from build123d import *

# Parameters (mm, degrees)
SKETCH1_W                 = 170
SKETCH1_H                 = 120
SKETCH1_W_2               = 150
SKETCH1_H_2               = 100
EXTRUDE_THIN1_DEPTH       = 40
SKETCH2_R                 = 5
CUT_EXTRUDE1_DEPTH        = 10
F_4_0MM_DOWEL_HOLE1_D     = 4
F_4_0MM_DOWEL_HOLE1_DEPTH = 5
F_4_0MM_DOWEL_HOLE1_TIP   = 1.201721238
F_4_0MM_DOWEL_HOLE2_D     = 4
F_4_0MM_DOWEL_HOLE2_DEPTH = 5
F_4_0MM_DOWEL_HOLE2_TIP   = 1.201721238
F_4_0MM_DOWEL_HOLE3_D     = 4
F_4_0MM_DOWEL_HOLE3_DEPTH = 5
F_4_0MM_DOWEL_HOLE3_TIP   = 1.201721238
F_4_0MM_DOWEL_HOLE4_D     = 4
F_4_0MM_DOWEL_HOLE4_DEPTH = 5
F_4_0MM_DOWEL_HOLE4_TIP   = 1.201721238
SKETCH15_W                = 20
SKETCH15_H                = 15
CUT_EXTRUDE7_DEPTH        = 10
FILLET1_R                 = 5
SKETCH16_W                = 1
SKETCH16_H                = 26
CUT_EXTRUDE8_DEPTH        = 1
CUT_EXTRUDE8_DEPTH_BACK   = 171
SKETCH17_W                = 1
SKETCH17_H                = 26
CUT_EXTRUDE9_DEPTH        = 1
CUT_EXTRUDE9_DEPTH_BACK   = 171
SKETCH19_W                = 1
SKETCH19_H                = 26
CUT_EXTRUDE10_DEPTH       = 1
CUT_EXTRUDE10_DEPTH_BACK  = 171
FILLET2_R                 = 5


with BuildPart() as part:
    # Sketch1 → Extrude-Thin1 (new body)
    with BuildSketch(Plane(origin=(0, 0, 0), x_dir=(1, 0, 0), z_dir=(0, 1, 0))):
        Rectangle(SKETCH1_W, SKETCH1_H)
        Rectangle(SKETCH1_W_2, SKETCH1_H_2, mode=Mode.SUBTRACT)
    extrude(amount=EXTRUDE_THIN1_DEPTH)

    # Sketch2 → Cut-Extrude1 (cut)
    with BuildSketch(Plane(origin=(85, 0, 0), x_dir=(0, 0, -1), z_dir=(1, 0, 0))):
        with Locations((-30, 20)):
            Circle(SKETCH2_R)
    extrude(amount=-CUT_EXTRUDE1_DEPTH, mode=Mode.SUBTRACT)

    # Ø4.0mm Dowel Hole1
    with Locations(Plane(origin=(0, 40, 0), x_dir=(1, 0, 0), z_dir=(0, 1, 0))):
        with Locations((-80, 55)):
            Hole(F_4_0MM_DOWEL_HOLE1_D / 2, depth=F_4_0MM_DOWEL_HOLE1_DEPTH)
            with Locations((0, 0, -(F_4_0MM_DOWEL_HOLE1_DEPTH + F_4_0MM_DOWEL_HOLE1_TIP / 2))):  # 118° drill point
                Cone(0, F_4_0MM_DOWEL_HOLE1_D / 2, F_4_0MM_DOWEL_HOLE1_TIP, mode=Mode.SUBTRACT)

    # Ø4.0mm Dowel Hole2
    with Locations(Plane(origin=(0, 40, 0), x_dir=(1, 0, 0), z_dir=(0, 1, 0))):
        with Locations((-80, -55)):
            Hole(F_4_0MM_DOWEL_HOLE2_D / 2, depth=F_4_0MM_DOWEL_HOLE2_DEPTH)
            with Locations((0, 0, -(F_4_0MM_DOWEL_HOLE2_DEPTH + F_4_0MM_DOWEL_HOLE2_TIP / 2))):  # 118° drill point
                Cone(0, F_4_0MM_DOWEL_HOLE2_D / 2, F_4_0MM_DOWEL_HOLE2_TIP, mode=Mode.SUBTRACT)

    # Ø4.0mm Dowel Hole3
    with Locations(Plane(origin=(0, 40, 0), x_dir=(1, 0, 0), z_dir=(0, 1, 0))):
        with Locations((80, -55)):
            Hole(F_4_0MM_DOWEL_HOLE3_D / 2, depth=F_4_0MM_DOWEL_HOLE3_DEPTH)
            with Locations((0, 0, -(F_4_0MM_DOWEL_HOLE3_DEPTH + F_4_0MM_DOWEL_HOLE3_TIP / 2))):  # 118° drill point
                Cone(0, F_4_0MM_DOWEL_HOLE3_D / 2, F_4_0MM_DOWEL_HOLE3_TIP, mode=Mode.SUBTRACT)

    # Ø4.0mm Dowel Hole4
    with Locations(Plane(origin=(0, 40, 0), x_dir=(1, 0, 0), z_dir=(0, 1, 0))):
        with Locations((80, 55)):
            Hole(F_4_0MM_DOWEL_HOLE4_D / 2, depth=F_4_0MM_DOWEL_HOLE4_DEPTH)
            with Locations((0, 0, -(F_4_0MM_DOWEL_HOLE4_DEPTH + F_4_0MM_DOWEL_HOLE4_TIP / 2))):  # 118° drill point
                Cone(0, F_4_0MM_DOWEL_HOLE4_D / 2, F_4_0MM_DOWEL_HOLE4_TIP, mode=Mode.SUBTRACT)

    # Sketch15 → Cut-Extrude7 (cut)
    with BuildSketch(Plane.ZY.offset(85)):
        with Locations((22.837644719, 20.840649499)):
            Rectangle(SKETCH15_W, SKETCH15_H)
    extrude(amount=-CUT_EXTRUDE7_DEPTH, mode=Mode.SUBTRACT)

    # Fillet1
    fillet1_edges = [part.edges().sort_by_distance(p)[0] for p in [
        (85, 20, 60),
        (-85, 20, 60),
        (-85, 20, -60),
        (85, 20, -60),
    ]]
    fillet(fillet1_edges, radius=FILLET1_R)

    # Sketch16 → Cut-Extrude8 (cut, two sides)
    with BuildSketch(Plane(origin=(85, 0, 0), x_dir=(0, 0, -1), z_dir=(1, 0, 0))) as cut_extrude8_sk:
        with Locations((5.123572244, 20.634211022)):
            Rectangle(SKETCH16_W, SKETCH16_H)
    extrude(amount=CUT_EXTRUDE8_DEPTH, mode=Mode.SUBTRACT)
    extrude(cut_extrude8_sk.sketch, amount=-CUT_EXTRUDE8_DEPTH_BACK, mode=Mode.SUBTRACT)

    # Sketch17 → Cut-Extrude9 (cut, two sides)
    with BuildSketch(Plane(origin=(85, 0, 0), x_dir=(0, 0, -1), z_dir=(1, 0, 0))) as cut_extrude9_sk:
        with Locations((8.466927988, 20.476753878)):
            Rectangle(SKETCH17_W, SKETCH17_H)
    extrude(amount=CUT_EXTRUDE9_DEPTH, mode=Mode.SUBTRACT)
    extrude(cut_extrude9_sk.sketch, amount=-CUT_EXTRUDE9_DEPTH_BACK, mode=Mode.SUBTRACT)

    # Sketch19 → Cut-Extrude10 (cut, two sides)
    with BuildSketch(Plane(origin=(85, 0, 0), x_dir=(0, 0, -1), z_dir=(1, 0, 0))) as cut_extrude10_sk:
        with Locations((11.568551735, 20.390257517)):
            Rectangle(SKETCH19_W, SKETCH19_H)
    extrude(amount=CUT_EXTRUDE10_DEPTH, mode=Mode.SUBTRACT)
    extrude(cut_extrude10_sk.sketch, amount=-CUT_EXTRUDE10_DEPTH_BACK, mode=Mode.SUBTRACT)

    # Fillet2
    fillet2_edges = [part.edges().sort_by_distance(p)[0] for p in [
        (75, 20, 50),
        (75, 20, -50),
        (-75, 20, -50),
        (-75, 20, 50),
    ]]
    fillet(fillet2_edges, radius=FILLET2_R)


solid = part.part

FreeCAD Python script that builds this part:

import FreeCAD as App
import Part
import Sketcher

V = App.Vector
Q = App.Units.Quantity


def edges_at(feature, points):
    """Names of the edges that pass closest to the given points."""
    edges = feature.Shape.Edges
    near = lambda p: min(range(len(edges)), key=lambda i: edges[i].distToShape(Part.Vertex(*p))[0])
    return sorted({f"Edge{near(p) + 1}" for p in points})

doc = App.newDocument("Part")
body = doc.addObject("PartDesign::Body", "Body")

# Sketch on XZ plane
sketch1 = body.newObject("Sketcher::SketchObject", "Sketch")
sketch1.AttachmentSupport = (doc.getObject("XZ_Plane"), [""])
sketch1.MapMode = "FlatFace"
sketch1.addGeometry([
    Part.LineSegment(V(-85, -60, 0), V(-85, 60, 0)),  # 0
    Part.LineSegment(V(-85, 60, 0), V(85, 60, 0)),  # 1
    Part.LineSegment(V(85, 60, 0), V(85, -60, 0)),  # 2
    Part.LineSegment(V(85, -60, 0), V(-85, -60, 0)),  # 3
    Part.LineSegment(V(75, 50, 0), V(-75, 50, 0)),  # 4
    Part.LineSegment(V(-75, 50, 0), V(-75, -50, 0)),  # 5
    Part.LineSegment(V(-75, -50, 0), V(75, -50, 0)),  # 6
    Part.LineSegment(V(75, -50, 0), V(75, 50, 0)),  # 7
], False)
sketch1.addConstraint([
    Sketcher.Constraint("Coincident", 0, 2, 1, 1),
    Sketcher.Constraint("Coincident", 1, 2, 2, 1),
    Sketcher.Constraint("Coincident", 2, 2, 3, 1),
    Sketcher.Constraint("Coincident", 3, 2, 0, 1),
    Sketcher.Constraint("Coincident", 4, 2, 5, 1),
    Sketcher.Constraint("Coincident", 5, 2, 6, 1),
    Sketcher.Constraint("Coincident", 6, 2, 7, 1),
    Sketcher.Constraint("Coincident", 7, 2, 4, 1),
    Sketcher.Constraint("Vertical", 0),
    Sketcher.Constraint("Horizontal", 1),
    Sketcher.Constraint("Vertical", 2),
    Sketcher.Constraint("Horizontal", 3),
    Sketcher.Constraint("Horizontal", 4),
    Sketcher.Constraint("Vertical", 5),
    Sketcher.Constraint("Horizontal", 6),
    Sketcher.Constraint("Vertical", 7),
    Sketcher.Constraint("Symmetric", 0, 2, 2, 2, -1, 1),
    Sketcher.Constraint("Symmetric", 4, 2, 6, 2, -1, 1),
    Sketcher.Constraint("DistanceX", 1, 1, 1, 2, Q("170 mm")),
    Sketcher.Constraint("DistanceX", 4, 2, 4, 1, Q("150 mm")),
    Sketcher.Constraint("DistanceY", 0, 1, 0, 2, Q("120 mm")),
    Sketcher.Constraint("DistanceY", 5, 2, 5, 1, Q("100 mm")),
])
pad1 = body.newObject("PartDesign::Pad", "Pad")
pad1.Profile = sketch1
pad1.Length = 40
pad1.Reversed = True

# Sketch on YZ plane
sketch2 = body.newObject("Sketcher::SketchObject", "Sketch001")
sketch2.AttachmentSupport = (doc.getObject("YZ_Plane"), [""])
sketch2.MapMode = "FlatFace"
sketch2.AttachmentOffset = App.Placement(V(0, 0, 85), App.Rotation())
sketch2.addGeometry(Part.Circle(V(20, 30, 0), V(0, 0, 1), 5), False)
sketch2.addConstraint([
    Sketcher.Constraint("Diameter", 0, Q("10 mm")),
    Sketcher.Constraint("DistanceX", -1, 1, 0, 3, Q("20 mm")),
    Sketcher.Constraint("DistanceY", -1, 1, 0, 3, Q("30 mm")),
])
pocket1 = body.newObject("PartDesign::Pocket", "Pocket")
pocket1.Profile = sketch2
pocket1.Length = 10

# Sketch on XZ plane
sketch3 = body.newObject("Sketcher::SketchObject", "Sketch002")
sketch3.AttachmentSupport = (doc.getObject("XZ_Plane"), [""])
sketch3.MapMode = "FlatFace"
sketch3.AttachmentOffset = App.Placement(V(0, 0, -40), App.Rotation())
sketch3.addGeometry(Part.Circle(V(-80, -55, 0), V(0, 0, 1), 2), False)
sketch3.addConstraint([
    Sketcher.Constraint("Diameter", 0, Q("4 mm")),
    Sketcher.Constraint("DistanceX", 0, 3, -1, 1, Q("80 mm")),
    Sketcher.Constraint("DistanceY", 0, 3, -1, 1, Q("55 mm")),
])
doc.recompute()
hole = body.newObject("PartDesign::Hole", "Hole")
hole.Profile = sketch3
hole.ThreadType = "None"
hole.Diameter = 4
hole.DepthType = "Dimension"
hole.Depth = 5
hole.DrillPoint = "Angled"
hole.DrillPointAngle = 118
hole.Reversed = True

# Sketch on XZ plane
sketch4 = body.newObject("Sketcher::SketchObject", "Sketch003")
sketch4.AttachmentSupport = (doc.getObject("XZ_Plane"), [""])
sketch4.MapMode = "FlatFace"
sketch4.AttachmentOffset = App.Placement(V(0, 0, -40), App.Rotation())
sketch4.addGeometry(Part.Circle(V(-80, 55, 0), V(0, 0, 1), 2), False)
sketch4.addConstraint([
    Sketcher.Constraint("Diameter", 0, Q("4 mm")),
    Sketcher.Constraint("DistanceX", 0, 3, -1, 1, Q("80 mm")),
    Sketcher.Constraint("DistanceY", -1, 1, 0, 3, Q("55 mm")),
])
doc.recompute()
hole2 = body.newObject("PartDesign::Hole", "Hole001")
hole2.Profile = sketch4
hole2.ThreadType = "None"
hole2.Diameter = 4
hole2.DepthType = "Dimension"
hole2.Depth = 5
hole2.DrillPoint = "Angled"
hole2.DrillPointAngle = 118
hole2.Reversed = True

# Sketch on XZ plane
sketch5 = body.newObject("Sketcher::SketchObject", "Sketch004")
sketch5.AttachmentSupport = (doc.getObject("XZ_Plane"), [""])
sketch5.MapMode = "FlatFace"
sketch5.AttachmentOffset = App.Placement(V(0, 0, -40), App.Rotation())
sketch5.addGeometry(Part.Circle(V(80, 55, 0), V(0, 0, 1), 2), False)
sketch5.addConstraint([
    Sketcher.Constraint("Diameter", 0, Q("4 mm")),
    Sketcher.Constraint("DistanceX", -1, 1, 0, 3, Q("80 mm")),
    Sketcher.Constraint("DistanceY", -1, 1, 0, 3, Q("55 mm")),
])
doc.recompute()
hole3 = body.newObject("PartDesign::Hole", "Hole002")
hole3.Profile = sketch5
hole3.ThreadType = "None"
hole3.Diameter = 4
hole3.DepthType = "Dimension"
hole3.Depth = 5
hole3.DrillPoint = "Angled"
hole3.DrillPointAngle = 118
hole3.Reversed = True

# Sketch on XZ plane
sketch6 = body.newObject("Sketcher::SketchObject", "Sketch005")
sketch6.AttachmentSupport = (doc.getObject("XZ_Plane"), [""])
sketch6.MapMode = "FlatFace"
sketch6.AttachmentOffset = App.Placement(V(0, 0, -40), App.Rotation())
sketch6.addGeometry(Part.Circle(V(80, -55, 0), V(0, 0, 1), 2), False)
sketch6.addConstraint([
    Sketcher.Constraint("Diameter", 0, Q("4 mm")),
    Sketcher.Constraint("DistanceX", -1, 1, 0, 3, Q("80 mm")),
    Sketcher.Constraint("DistanceY", 0, 3, -1, 1, Q("55 mm")),
])
doc.recompute()
hole4 = body.newObject("PartDesign::Hole", "Hole003")
hole4.Profile = sketch6
hole4.ThreadType = "None"
hole4.Diameter = 4
hole4.DepthType = "Dimension"
hole4.Depth = 5
hole4.DrillPoint = "Angled"
hole4.DrillPointAngle = 118
hole4.Reversed = True

# Sketch on YZ plane
sketch7 = body.newObject("Sketcher::SketchObject", "Sketch006")
sketch7.AttachmentSupport = (doc.getObject("YZ_Plane"), [""])
sketch7.MapMode = "FlatFace"
sketch7.AttachmentOffset = App.Placement(V(0, 0, -85), App.Rotation())
sketch7.addGeometry([
    Part.LineSegment(V(28.340649, 12.837645, 0), V(13.340649, 12.837645, 0)),
    Part.LineSegment(V(13.340649, 12.837645, 0), V(13.340649, 32.837645, 0)),
    Part.LineSegment(V(13.340649, 32.837645, 0), V(28.340649, 32.837645, 0)),
    Part.LineSegment(V(28.340649, 32.837645, 0), V(28.340649, 12.837645, 0)),
], False)
sketch7.addConstraint([
    Sketcher.Constraint("Coincident", 0, 2, 1, 1),
    Sketcher.Constraint("Coincident", 1, 2, 2, 1),
    Sketcher.Constraint("Coincident", 2, 2, 3, 1),
    Sketcher.Constraint("Coincident", 3, 2, 0, 1),
    Sketcher.Constraint("Horizontal", 0),
    Sketcher.Constraint("Vertical", 1),
    Sketcher.Constraint("Horizontal", 2),
    Sketcher.Constraint("Vertical", 3),
    Sketcher.Constraint("DistanceX", 0, 2, 0, 1, Q("15 mm")),
    Sketcher.Constraint("DistanceY", 1, 1, 1, 2, Q("20 mm")),
    Sketcher.Constraint("DistanceX", -1, 1, 0, 2, Q("13.340649 mm")),
    Sketcher.Constraint("DistanceY", -1, 1, 0, 2, Q("12.837645 mm")),
])
pocket2 = body.newObject("PartDesign::Pocket", "Pocket001")
pocket2.Profile = sketch7
pocket2.Length = 10
pocket2.Reversed = True
doc.recompute()

fillet = body.newObject("PartDesign::Fillet", "Fillet")
fillet.Base = (pocket2, edges_at(pocket2, [
    (85, 20, 60),
    (-85, 20, 60),
    (-85, 20, -60),
    (85, 20, -60),
]))
fillet.Radius = 5

# Sketch on YZ plane
sketch8 = body.newObject("Sketcher::SketchObject", "Sketch007")
sketch8.AttachmentSupport = (doc.getObject("YZ_Plane"), [""])
sketch8.MapMode = "FlatFace"
sketch8.AttachmentOffset = App.Placement(V(0, 0, 85), App.Rotation())
sketch8.addGeometry([
    Part.LineSegment(V(33.634211, -4.623572, 0), V(7.634211, -4.623572, 0)),
    Part.LineSegment(V(7.634211, -4.623572, 0), V(7.634211, -5.623572, 0)),
    Part.LineSegment(V(7.634211, -5.623572, 0), V(33.634211, -5.623572, 0)),
    Part.LineSegment(V(33.634211, -5.623572, 0), V(33.634211, -4.623572, 0)),
], False)
sketch8.addConstraint([
    Sketcher.Constraint("Coincident", 0, 2, 1, 1),
    Sketcher.Constraint("Coincident", 1, 2, 2, 1),
    Sketcher.Constraint("Coincident", 2, 2, 3, 1),
    Sketcher.Constraint("Coincident", 3, 2, 0, 1),
    Sketcher.Constraint("Horizontal", 0),
    Sketcher.Constraint("Vertical", 1),
    Sketcher.Constraint("Horizontal", 2),
    Sketcher.Constraint("Vertical", 3),
    Sketcher.Constraint("DistanceX", 0, 2, 0, 1, Q("26 mm")),
    Sketcher.Constraint("DistanceY", 1, 2, 1, 1, Q("1 mm")),
    Sketcher.Constraint("DistanceX", -1, 1, 0, 2, Q("7.634211 mm")),
    Sketcher.Constraint("DistanceY", 0, 2, -1, 1, Q("4.623572 mm")),
])
pocket3 = body.newObject("PartDesign::Pocket", "Pocket002")
pocket3.Profile = sketch8
pocket3.Type = "ThroughAll"
pocket3.Midplane = True

# Sketch on YZ plane
sketch9 = body.newObject("Sketcher::SketchObject", "Sketch008")
sketch9.AttachmentSupport = (doc.getObject("YZ_Plane"), [""])
sketch9.MapMode = "FlatFace"
sketch9.AttachmentOffset = App.Placement(V(0, 0, 85), App.Rotation())
sketch9.addGeometry([
    Part.LineSegment(V(33.476754, -7.966928, 0), V(7.476754, -7.966928, 0)),
    Part.LineSegment(V(7.476754, -7.966928, 0), V(7.476754, -8.966928, 0)),
    Part.LineSegment(V(7.476754, -8.966928, 0), V(33.476754, -8.966928, 0)),
    Part.LineSegment(V(33.476754, -8.966928, 0), V(33.476754, -7.966928, 0)),
], False)
sketch9.addConstraint([
    Sketcher.Constraint("Coincident", 0, 2, 1, 1),
    Sketcher.Constraint("Coincident", 1, 2, 2, 1),
    Sketcher.Constraint("Coincident", 2, 2, 3, 1),
    Sketcher.Constraint("Coincident", 3, 2, 0, 1),
    Sketcher.Constraint("Horizontal", 0),
    Sketcher.Constraint("Vertical", 1),
    Sketcher.Constraint("Horizontal", 2),
    Sketcher.Constraint("Vertical", 3),
    Sketcher.Constraint("DistanceX", 0, 2, 0, 1, Q("26 mm")),
    Sketcher.Constraint("DistanceY", 1, 2, 1, 1, Q("1 mm")),
    Sketcher.Constraint("DistanceX", -1, 1, 0, 2, Q("7.476754 mm")),
    Sketcher.Constraint("DistanceY", 0, 2, -1, 1, Q("7.966928 mm")),
])
pocket4 = body.newObject("PartDesign::Pocket", "Pocket003")
pocket4.Profile = sketch9
pocket4.Type = "ThroughAll"
pocket4.Midplane = True

# Sketch on YZ plane
sketch10 = body.newObject("Sketcher::SketchObject", "Sketch009")
sketch10.AttachmentSupport = (doc.getObject("YZ_Plane"), [""])
sketch10.MapMode = "FlatFace"
sketch10.AttachmentOffset = App.Placement(V(0, 0, 85), App.Rotation())
sketch10.addGeometry([
    Part.LineSegment(V(33.390258, -11.068552, 0), V(7.390258, -11.068552, 0)),
    Part.LineSegment(V(7.390258, -11.068552, 0), V(7.390258, -12.068552, 0)),
    Part.LineSegment(V(7.390258, -12.068552, 0), V(33.390258, -12.068552, 0)),
    Part.LineSegment(V(33.390258, -12.068552, 0), V(33.390258, -11.068552, 0)),
], False)
sketch10.addConstraint([
    Sketcher.Constraint("Coincident", 0, 2, 1, 1),
    Sketcher.Constraint("Coincident", 1, 2, 2, 1),
    Sketcher.Constraint("Coincident", 2, 2, 3, 1),
    Sketcher.Constraint("Coincident", 3, 2, 0, 1),
    Sketcher.Constraint("Horizontal", 0),
    Sketcher.Constraint("Vertical", 1),
    Sketcher.Constraint("Horizontal", 2),
    Sketcher.Constraint("Vertical", 3),
    Sketcher.Constraint("DistanceX", 0, 2, 0, 1, Q("26 mm")),
    Sketcher.Constraint("DistanceY", 1, 2, 1, 1, Q("1 mm")),
    Sketcher.Constraint("DistanceY", 0, 2, -1, 1, Q("11.068552 mm")),
    Sketcher.Constraint("DistanceX", -1, 1, 0, 2, Q("7.390258 mm")),
])
pocket5 = body.newObject("PartDesign::Pocket", "Pocket004")
pocket5.Profile = sketch10
pocket5.Type = "ThroughAll"
pocket5.Midplane = True
doc.recompute()

fillet2 = body.newObject("PartDesign::Fillet", "Fillet001")
fillet2.Base = (pocket5, edges_at(pocket5, [
    (75, 20, 50),
    (75, 20, -50),
    (-75, 20, -50),
    (-75, 20, 50),
]))
fillet2.Radius = 5

doc.recompute()
